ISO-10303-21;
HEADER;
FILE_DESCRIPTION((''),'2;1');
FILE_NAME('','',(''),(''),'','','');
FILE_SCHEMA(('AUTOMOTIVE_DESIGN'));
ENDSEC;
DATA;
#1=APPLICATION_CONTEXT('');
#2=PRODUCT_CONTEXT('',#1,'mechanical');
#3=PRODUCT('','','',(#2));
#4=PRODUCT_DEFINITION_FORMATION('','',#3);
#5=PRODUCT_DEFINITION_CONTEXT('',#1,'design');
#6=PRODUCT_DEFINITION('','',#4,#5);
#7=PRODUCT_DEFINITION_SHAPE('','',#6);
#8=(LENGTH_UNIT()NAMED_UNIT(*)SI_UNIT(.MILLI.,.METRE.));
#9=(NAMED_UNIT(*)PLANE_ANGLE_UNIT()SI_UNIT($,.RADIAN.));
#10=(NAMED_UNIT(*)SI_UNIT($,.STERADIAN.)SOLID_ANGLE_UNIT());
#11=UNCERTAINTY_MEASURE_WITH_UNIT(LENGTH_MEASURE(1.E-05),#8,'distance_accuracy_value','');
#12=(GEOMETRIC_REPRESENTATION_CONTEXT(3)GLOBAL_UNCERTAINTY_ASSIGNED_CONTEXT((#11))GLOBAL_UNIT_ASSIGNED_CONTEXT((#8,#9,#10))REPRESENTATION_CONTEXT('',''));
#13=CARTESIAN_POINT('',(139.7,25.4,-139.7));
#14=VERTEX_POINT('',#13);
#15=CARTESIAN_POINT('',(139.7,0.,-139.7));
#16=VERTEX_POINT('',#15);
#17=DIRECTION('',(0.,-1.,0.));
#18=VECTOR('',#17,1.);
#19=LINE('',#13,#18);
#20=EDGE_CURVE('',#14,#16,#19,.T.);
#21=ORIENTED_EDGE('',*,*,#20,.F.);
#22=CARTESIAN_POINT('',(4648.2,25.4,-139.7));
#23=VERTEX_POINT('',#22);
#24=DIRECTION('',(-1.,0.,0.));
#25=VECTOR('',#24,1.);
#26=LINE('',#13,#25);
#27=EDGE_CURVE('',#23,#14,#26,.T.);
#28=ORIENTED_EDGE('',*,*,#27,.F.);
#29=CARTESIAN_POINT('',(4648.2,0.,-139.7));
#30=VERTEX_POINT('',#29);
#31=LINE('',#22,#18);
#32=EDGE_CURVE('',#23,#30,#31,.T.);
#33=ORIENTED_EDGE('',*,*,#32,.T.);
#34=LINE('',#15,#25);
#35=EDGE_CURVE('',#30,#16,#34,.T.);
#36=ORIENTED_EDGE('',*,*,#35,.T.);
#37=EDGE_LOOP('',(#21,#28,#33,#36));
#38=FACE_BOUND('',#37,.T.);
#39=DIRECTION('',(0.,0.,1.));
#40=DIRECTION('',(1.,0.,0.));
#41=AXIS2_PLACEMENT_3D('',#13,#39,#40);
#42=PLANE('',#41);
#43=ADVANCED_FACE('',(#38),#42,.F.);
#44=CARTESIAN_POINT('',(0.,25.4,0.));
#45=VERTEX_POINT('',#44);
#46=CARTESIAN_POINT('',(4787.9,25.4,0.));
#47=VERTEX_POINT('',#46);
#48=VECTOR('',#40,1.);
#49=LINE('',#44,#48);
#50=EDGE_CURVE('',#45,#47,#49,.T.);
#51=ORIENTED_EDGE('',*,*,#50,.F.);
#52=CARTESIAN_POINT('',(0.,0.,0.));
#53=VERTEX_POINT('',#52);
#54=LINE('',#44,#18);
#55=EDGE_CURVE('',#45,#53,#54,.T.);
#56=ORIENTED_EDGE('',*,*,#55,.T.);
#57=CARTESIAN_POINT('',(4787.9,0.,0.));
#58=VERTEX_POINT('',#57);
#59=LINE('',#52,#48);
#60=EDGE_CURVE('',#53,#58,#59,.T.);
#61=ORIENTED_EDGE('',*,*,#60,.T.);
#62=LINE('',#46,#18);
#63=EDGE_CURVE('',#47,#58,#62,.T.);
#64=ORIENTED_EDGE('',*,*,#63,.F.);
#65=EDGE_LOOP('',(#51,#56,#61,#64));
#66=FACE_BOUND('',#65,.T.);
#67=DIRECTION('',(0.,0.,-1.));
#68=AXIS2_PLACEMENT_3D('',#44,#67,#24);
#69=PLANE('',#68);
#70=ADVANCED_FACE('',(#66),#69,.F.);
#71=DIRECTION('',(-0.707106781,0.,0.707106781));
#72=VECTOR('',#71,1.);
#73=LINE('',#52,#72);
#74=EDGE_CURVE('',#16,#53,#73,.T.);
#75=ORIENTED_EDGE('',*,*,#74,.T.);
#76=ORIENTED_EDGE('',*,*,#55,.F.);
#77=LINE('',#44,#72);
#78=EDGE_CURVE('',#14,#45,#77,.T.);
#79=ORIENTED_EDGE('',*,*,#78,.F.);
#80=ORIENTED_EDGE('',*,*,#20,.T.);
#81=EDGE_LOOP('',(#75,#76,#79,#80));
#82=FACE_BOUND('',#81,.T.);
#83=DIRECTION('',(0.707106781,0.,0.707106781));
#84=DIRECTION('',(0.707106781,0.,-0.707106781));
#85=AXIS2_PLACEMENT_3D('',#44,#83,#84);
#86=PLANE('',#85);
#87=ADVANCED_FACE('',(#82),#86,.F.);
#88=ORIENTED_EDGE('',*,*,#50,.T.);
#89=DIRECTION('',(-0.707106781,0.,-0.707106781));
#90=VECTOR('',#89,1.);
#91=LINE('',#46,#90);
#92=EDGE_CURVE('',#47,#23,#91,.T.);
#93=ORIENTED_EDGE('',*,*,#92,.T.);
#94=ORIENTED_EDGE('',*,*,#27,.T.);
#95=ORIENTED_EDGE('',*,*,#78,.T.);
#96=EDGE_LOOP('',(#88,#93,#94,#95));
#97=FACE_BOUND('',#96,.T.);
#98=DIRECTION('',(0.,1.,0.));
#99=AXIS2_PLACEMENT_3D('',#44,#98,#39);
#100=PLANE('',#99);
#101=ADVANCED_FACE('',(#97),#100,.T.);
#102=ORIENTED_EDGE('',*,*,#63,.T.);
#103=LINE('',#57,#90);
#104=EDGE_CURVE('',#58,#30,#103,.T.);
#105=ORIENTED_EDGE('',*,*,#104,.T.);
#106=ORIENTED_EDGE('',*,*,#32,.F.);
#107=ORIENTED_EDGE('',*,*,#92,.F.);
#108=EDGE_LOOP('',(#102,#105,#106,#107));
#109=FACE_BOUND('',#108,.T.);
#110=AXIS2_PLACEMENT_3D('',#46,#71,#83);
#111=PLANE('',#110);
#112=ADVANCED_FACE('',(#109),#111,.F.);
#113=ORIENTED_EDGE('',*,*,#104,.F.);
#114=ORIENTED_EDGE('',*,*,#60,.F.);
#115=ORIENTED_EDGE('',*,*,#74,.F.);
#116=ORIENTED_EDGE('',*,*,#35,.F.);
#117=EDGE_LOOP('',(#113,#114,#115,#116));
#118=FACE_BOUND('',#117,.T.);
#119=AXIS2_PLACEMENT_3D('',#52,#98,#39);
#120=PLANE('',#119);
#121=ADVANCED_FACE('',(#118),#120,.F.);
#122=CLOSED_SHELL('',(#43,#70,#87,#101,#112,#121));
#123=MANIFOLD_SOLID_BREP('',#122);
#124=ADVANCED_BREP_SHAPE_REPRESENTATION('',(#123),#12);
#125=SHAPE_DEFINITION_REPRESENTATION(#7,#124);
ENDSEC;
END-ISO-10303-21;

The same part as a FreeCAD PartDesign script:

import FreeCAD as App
import Part
import Sketcher
Q = App.Units.Quantity


def add_polygon(sketch, points):
    """Adds a closed chain of lines whose ends are joined by coincident constraints."""
    first, n = sketch.GeometryCount, len(points)
    for a, b in zip(points, points[1:] + points[:1]):
        sketch.addGeometry(Part.LineSegment(App.Vector(*a, 0), App.Vector(*b, 0)), False)
    for i in range(n):
        sketch.addConstraint(Sketcher.Constraint("Coincident", first + i, 2, first + (i + 1) % n, 1))

doc = App.newDocument("Part")
body = doc.addObject("PartDesign::Body", "Body")

# Sketch on XZ plane
sketch1 = doc.addObject("Sketcher::SketchObject", "Sketch")
body.addObject(sketch1)
sketch1.AttachmentSupport = (doc.XZ_Plane, [""])
sketch1.MapMode = "FlatFace"
add_polygon(sketch1, [(4788, 0), (4648, -140), (140, -140), (0, 0)])  # lines 0-3
sketch1.addConstraint(Sketcher.Constraint("Horizontal", 1))
sketch1.addConstraint(Sketcher.Constraint("Horizontal", 3))
sketch1.addConstraint(Sketcher.Constraint("Coincident", 2, 2, -1, 1))
sketch1.addConstraint(Sketcher.Constraint("Perpendicular", 0, 2))
sketch1.addConstraint(Sketcher.Constraint("Equal", 0, 2))
sketch1.addConstraint(Sketcher.Constraint("DistanceX", 1, 2, 1, 1, Q("177.5 in")))
sketch1.addConstraint(Sketcher.Constraint("DistanceX", 3, 1, 3, 2, Q("188.5 in")))
pad1 = doc.addObject("PartDesign::Pad", "Pad")
body.addObject(pad1)
pad1.Profile = sketch1
pad1.Length = Q("1 in")
pad1.Reversed = True

doc.recompute()
